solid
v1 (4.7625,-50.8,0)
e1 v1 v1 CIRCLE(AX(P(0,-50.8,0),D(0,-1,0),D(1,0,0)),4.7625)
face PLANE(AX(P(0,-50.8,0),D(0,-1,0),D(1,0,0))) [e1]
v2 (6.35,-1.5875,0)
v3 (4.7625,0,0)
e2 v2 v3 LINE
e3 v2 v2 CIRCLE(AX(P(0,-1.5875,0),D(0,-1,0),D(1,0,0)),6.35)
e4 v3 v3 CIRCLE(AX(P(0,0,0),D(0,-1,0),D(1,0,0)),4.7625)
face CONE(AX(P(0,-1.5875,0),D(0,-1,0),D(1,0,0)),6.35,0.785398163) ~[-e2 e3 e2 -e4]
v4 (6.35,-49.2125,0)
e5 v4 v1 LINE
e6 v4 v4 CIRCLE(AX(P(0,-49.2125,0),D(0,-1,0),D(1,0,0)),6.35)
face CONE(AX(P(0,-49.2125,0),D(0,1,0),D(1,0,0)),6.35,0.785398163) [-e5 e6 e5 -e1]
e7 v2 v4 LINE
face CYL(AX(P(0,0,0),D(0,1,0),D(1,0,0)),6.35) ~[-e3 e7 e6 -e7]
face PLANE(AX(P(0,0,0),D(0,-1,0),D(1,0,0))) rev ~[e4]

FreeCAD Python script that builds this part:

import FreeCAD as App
import Part
import Sketcher

V = App.Vector
Q = App.Units.Quantity


def edges_at(feature, points):
    """Names of the edges that pass closest to the given points."""
    edges = feature.Shape.Edges
    near = lambda p: min(range(len(edges)), key=lambda i: edges[i].distToShape(Part.Vertex(*p))[0])
    return sorted({f"Edge{near(p) + 1}" for p in points})

doc = App.newDocument("Part")
body = doc.addObject("PartDesign::Body", "Body")

# Sketch on XZ plane
sketch1 = doc.addObject("Sketcher::SketchObject", "Sketch")
body.addObject(sketch1)
sketch1.AttachmentSupport = (doc.XZ_Plane, [""])
sketch1.MapMode = "FlatFace"
sketch1.addGeometry(Part.Circle(V(0, 0, 0), V(0, 0, 1), 6), False)
sketch1.addConstraint([
    Sketcher.Constraint("Coincident", 0, 3, -1, 1),
    Sketcher.Constraint("Diameter", 0, Q("0.5 in")),
])
pad1 = doc.addObject("PartDesign::Pad", "Pad")
body.addObject(pad1)
pad1.Profile = sketch1
pad1.Length = Q("2 in")
doc.recompute()

chamfer = doc.addObject("PartDesign::Chamfer", "Chamfer")
body.addObject(chamfer)
chamfer.Base = (pad1, edges_at(pad1, [(-6.35, -50.8, 0), (-6.35, 0, 0)]))
chamfer.ChamferType = "Two distances"
chamfer.Size = Q("0.0625 in")
chamfer.Size2 = Q("0.0625 in")

doc.recompute()
